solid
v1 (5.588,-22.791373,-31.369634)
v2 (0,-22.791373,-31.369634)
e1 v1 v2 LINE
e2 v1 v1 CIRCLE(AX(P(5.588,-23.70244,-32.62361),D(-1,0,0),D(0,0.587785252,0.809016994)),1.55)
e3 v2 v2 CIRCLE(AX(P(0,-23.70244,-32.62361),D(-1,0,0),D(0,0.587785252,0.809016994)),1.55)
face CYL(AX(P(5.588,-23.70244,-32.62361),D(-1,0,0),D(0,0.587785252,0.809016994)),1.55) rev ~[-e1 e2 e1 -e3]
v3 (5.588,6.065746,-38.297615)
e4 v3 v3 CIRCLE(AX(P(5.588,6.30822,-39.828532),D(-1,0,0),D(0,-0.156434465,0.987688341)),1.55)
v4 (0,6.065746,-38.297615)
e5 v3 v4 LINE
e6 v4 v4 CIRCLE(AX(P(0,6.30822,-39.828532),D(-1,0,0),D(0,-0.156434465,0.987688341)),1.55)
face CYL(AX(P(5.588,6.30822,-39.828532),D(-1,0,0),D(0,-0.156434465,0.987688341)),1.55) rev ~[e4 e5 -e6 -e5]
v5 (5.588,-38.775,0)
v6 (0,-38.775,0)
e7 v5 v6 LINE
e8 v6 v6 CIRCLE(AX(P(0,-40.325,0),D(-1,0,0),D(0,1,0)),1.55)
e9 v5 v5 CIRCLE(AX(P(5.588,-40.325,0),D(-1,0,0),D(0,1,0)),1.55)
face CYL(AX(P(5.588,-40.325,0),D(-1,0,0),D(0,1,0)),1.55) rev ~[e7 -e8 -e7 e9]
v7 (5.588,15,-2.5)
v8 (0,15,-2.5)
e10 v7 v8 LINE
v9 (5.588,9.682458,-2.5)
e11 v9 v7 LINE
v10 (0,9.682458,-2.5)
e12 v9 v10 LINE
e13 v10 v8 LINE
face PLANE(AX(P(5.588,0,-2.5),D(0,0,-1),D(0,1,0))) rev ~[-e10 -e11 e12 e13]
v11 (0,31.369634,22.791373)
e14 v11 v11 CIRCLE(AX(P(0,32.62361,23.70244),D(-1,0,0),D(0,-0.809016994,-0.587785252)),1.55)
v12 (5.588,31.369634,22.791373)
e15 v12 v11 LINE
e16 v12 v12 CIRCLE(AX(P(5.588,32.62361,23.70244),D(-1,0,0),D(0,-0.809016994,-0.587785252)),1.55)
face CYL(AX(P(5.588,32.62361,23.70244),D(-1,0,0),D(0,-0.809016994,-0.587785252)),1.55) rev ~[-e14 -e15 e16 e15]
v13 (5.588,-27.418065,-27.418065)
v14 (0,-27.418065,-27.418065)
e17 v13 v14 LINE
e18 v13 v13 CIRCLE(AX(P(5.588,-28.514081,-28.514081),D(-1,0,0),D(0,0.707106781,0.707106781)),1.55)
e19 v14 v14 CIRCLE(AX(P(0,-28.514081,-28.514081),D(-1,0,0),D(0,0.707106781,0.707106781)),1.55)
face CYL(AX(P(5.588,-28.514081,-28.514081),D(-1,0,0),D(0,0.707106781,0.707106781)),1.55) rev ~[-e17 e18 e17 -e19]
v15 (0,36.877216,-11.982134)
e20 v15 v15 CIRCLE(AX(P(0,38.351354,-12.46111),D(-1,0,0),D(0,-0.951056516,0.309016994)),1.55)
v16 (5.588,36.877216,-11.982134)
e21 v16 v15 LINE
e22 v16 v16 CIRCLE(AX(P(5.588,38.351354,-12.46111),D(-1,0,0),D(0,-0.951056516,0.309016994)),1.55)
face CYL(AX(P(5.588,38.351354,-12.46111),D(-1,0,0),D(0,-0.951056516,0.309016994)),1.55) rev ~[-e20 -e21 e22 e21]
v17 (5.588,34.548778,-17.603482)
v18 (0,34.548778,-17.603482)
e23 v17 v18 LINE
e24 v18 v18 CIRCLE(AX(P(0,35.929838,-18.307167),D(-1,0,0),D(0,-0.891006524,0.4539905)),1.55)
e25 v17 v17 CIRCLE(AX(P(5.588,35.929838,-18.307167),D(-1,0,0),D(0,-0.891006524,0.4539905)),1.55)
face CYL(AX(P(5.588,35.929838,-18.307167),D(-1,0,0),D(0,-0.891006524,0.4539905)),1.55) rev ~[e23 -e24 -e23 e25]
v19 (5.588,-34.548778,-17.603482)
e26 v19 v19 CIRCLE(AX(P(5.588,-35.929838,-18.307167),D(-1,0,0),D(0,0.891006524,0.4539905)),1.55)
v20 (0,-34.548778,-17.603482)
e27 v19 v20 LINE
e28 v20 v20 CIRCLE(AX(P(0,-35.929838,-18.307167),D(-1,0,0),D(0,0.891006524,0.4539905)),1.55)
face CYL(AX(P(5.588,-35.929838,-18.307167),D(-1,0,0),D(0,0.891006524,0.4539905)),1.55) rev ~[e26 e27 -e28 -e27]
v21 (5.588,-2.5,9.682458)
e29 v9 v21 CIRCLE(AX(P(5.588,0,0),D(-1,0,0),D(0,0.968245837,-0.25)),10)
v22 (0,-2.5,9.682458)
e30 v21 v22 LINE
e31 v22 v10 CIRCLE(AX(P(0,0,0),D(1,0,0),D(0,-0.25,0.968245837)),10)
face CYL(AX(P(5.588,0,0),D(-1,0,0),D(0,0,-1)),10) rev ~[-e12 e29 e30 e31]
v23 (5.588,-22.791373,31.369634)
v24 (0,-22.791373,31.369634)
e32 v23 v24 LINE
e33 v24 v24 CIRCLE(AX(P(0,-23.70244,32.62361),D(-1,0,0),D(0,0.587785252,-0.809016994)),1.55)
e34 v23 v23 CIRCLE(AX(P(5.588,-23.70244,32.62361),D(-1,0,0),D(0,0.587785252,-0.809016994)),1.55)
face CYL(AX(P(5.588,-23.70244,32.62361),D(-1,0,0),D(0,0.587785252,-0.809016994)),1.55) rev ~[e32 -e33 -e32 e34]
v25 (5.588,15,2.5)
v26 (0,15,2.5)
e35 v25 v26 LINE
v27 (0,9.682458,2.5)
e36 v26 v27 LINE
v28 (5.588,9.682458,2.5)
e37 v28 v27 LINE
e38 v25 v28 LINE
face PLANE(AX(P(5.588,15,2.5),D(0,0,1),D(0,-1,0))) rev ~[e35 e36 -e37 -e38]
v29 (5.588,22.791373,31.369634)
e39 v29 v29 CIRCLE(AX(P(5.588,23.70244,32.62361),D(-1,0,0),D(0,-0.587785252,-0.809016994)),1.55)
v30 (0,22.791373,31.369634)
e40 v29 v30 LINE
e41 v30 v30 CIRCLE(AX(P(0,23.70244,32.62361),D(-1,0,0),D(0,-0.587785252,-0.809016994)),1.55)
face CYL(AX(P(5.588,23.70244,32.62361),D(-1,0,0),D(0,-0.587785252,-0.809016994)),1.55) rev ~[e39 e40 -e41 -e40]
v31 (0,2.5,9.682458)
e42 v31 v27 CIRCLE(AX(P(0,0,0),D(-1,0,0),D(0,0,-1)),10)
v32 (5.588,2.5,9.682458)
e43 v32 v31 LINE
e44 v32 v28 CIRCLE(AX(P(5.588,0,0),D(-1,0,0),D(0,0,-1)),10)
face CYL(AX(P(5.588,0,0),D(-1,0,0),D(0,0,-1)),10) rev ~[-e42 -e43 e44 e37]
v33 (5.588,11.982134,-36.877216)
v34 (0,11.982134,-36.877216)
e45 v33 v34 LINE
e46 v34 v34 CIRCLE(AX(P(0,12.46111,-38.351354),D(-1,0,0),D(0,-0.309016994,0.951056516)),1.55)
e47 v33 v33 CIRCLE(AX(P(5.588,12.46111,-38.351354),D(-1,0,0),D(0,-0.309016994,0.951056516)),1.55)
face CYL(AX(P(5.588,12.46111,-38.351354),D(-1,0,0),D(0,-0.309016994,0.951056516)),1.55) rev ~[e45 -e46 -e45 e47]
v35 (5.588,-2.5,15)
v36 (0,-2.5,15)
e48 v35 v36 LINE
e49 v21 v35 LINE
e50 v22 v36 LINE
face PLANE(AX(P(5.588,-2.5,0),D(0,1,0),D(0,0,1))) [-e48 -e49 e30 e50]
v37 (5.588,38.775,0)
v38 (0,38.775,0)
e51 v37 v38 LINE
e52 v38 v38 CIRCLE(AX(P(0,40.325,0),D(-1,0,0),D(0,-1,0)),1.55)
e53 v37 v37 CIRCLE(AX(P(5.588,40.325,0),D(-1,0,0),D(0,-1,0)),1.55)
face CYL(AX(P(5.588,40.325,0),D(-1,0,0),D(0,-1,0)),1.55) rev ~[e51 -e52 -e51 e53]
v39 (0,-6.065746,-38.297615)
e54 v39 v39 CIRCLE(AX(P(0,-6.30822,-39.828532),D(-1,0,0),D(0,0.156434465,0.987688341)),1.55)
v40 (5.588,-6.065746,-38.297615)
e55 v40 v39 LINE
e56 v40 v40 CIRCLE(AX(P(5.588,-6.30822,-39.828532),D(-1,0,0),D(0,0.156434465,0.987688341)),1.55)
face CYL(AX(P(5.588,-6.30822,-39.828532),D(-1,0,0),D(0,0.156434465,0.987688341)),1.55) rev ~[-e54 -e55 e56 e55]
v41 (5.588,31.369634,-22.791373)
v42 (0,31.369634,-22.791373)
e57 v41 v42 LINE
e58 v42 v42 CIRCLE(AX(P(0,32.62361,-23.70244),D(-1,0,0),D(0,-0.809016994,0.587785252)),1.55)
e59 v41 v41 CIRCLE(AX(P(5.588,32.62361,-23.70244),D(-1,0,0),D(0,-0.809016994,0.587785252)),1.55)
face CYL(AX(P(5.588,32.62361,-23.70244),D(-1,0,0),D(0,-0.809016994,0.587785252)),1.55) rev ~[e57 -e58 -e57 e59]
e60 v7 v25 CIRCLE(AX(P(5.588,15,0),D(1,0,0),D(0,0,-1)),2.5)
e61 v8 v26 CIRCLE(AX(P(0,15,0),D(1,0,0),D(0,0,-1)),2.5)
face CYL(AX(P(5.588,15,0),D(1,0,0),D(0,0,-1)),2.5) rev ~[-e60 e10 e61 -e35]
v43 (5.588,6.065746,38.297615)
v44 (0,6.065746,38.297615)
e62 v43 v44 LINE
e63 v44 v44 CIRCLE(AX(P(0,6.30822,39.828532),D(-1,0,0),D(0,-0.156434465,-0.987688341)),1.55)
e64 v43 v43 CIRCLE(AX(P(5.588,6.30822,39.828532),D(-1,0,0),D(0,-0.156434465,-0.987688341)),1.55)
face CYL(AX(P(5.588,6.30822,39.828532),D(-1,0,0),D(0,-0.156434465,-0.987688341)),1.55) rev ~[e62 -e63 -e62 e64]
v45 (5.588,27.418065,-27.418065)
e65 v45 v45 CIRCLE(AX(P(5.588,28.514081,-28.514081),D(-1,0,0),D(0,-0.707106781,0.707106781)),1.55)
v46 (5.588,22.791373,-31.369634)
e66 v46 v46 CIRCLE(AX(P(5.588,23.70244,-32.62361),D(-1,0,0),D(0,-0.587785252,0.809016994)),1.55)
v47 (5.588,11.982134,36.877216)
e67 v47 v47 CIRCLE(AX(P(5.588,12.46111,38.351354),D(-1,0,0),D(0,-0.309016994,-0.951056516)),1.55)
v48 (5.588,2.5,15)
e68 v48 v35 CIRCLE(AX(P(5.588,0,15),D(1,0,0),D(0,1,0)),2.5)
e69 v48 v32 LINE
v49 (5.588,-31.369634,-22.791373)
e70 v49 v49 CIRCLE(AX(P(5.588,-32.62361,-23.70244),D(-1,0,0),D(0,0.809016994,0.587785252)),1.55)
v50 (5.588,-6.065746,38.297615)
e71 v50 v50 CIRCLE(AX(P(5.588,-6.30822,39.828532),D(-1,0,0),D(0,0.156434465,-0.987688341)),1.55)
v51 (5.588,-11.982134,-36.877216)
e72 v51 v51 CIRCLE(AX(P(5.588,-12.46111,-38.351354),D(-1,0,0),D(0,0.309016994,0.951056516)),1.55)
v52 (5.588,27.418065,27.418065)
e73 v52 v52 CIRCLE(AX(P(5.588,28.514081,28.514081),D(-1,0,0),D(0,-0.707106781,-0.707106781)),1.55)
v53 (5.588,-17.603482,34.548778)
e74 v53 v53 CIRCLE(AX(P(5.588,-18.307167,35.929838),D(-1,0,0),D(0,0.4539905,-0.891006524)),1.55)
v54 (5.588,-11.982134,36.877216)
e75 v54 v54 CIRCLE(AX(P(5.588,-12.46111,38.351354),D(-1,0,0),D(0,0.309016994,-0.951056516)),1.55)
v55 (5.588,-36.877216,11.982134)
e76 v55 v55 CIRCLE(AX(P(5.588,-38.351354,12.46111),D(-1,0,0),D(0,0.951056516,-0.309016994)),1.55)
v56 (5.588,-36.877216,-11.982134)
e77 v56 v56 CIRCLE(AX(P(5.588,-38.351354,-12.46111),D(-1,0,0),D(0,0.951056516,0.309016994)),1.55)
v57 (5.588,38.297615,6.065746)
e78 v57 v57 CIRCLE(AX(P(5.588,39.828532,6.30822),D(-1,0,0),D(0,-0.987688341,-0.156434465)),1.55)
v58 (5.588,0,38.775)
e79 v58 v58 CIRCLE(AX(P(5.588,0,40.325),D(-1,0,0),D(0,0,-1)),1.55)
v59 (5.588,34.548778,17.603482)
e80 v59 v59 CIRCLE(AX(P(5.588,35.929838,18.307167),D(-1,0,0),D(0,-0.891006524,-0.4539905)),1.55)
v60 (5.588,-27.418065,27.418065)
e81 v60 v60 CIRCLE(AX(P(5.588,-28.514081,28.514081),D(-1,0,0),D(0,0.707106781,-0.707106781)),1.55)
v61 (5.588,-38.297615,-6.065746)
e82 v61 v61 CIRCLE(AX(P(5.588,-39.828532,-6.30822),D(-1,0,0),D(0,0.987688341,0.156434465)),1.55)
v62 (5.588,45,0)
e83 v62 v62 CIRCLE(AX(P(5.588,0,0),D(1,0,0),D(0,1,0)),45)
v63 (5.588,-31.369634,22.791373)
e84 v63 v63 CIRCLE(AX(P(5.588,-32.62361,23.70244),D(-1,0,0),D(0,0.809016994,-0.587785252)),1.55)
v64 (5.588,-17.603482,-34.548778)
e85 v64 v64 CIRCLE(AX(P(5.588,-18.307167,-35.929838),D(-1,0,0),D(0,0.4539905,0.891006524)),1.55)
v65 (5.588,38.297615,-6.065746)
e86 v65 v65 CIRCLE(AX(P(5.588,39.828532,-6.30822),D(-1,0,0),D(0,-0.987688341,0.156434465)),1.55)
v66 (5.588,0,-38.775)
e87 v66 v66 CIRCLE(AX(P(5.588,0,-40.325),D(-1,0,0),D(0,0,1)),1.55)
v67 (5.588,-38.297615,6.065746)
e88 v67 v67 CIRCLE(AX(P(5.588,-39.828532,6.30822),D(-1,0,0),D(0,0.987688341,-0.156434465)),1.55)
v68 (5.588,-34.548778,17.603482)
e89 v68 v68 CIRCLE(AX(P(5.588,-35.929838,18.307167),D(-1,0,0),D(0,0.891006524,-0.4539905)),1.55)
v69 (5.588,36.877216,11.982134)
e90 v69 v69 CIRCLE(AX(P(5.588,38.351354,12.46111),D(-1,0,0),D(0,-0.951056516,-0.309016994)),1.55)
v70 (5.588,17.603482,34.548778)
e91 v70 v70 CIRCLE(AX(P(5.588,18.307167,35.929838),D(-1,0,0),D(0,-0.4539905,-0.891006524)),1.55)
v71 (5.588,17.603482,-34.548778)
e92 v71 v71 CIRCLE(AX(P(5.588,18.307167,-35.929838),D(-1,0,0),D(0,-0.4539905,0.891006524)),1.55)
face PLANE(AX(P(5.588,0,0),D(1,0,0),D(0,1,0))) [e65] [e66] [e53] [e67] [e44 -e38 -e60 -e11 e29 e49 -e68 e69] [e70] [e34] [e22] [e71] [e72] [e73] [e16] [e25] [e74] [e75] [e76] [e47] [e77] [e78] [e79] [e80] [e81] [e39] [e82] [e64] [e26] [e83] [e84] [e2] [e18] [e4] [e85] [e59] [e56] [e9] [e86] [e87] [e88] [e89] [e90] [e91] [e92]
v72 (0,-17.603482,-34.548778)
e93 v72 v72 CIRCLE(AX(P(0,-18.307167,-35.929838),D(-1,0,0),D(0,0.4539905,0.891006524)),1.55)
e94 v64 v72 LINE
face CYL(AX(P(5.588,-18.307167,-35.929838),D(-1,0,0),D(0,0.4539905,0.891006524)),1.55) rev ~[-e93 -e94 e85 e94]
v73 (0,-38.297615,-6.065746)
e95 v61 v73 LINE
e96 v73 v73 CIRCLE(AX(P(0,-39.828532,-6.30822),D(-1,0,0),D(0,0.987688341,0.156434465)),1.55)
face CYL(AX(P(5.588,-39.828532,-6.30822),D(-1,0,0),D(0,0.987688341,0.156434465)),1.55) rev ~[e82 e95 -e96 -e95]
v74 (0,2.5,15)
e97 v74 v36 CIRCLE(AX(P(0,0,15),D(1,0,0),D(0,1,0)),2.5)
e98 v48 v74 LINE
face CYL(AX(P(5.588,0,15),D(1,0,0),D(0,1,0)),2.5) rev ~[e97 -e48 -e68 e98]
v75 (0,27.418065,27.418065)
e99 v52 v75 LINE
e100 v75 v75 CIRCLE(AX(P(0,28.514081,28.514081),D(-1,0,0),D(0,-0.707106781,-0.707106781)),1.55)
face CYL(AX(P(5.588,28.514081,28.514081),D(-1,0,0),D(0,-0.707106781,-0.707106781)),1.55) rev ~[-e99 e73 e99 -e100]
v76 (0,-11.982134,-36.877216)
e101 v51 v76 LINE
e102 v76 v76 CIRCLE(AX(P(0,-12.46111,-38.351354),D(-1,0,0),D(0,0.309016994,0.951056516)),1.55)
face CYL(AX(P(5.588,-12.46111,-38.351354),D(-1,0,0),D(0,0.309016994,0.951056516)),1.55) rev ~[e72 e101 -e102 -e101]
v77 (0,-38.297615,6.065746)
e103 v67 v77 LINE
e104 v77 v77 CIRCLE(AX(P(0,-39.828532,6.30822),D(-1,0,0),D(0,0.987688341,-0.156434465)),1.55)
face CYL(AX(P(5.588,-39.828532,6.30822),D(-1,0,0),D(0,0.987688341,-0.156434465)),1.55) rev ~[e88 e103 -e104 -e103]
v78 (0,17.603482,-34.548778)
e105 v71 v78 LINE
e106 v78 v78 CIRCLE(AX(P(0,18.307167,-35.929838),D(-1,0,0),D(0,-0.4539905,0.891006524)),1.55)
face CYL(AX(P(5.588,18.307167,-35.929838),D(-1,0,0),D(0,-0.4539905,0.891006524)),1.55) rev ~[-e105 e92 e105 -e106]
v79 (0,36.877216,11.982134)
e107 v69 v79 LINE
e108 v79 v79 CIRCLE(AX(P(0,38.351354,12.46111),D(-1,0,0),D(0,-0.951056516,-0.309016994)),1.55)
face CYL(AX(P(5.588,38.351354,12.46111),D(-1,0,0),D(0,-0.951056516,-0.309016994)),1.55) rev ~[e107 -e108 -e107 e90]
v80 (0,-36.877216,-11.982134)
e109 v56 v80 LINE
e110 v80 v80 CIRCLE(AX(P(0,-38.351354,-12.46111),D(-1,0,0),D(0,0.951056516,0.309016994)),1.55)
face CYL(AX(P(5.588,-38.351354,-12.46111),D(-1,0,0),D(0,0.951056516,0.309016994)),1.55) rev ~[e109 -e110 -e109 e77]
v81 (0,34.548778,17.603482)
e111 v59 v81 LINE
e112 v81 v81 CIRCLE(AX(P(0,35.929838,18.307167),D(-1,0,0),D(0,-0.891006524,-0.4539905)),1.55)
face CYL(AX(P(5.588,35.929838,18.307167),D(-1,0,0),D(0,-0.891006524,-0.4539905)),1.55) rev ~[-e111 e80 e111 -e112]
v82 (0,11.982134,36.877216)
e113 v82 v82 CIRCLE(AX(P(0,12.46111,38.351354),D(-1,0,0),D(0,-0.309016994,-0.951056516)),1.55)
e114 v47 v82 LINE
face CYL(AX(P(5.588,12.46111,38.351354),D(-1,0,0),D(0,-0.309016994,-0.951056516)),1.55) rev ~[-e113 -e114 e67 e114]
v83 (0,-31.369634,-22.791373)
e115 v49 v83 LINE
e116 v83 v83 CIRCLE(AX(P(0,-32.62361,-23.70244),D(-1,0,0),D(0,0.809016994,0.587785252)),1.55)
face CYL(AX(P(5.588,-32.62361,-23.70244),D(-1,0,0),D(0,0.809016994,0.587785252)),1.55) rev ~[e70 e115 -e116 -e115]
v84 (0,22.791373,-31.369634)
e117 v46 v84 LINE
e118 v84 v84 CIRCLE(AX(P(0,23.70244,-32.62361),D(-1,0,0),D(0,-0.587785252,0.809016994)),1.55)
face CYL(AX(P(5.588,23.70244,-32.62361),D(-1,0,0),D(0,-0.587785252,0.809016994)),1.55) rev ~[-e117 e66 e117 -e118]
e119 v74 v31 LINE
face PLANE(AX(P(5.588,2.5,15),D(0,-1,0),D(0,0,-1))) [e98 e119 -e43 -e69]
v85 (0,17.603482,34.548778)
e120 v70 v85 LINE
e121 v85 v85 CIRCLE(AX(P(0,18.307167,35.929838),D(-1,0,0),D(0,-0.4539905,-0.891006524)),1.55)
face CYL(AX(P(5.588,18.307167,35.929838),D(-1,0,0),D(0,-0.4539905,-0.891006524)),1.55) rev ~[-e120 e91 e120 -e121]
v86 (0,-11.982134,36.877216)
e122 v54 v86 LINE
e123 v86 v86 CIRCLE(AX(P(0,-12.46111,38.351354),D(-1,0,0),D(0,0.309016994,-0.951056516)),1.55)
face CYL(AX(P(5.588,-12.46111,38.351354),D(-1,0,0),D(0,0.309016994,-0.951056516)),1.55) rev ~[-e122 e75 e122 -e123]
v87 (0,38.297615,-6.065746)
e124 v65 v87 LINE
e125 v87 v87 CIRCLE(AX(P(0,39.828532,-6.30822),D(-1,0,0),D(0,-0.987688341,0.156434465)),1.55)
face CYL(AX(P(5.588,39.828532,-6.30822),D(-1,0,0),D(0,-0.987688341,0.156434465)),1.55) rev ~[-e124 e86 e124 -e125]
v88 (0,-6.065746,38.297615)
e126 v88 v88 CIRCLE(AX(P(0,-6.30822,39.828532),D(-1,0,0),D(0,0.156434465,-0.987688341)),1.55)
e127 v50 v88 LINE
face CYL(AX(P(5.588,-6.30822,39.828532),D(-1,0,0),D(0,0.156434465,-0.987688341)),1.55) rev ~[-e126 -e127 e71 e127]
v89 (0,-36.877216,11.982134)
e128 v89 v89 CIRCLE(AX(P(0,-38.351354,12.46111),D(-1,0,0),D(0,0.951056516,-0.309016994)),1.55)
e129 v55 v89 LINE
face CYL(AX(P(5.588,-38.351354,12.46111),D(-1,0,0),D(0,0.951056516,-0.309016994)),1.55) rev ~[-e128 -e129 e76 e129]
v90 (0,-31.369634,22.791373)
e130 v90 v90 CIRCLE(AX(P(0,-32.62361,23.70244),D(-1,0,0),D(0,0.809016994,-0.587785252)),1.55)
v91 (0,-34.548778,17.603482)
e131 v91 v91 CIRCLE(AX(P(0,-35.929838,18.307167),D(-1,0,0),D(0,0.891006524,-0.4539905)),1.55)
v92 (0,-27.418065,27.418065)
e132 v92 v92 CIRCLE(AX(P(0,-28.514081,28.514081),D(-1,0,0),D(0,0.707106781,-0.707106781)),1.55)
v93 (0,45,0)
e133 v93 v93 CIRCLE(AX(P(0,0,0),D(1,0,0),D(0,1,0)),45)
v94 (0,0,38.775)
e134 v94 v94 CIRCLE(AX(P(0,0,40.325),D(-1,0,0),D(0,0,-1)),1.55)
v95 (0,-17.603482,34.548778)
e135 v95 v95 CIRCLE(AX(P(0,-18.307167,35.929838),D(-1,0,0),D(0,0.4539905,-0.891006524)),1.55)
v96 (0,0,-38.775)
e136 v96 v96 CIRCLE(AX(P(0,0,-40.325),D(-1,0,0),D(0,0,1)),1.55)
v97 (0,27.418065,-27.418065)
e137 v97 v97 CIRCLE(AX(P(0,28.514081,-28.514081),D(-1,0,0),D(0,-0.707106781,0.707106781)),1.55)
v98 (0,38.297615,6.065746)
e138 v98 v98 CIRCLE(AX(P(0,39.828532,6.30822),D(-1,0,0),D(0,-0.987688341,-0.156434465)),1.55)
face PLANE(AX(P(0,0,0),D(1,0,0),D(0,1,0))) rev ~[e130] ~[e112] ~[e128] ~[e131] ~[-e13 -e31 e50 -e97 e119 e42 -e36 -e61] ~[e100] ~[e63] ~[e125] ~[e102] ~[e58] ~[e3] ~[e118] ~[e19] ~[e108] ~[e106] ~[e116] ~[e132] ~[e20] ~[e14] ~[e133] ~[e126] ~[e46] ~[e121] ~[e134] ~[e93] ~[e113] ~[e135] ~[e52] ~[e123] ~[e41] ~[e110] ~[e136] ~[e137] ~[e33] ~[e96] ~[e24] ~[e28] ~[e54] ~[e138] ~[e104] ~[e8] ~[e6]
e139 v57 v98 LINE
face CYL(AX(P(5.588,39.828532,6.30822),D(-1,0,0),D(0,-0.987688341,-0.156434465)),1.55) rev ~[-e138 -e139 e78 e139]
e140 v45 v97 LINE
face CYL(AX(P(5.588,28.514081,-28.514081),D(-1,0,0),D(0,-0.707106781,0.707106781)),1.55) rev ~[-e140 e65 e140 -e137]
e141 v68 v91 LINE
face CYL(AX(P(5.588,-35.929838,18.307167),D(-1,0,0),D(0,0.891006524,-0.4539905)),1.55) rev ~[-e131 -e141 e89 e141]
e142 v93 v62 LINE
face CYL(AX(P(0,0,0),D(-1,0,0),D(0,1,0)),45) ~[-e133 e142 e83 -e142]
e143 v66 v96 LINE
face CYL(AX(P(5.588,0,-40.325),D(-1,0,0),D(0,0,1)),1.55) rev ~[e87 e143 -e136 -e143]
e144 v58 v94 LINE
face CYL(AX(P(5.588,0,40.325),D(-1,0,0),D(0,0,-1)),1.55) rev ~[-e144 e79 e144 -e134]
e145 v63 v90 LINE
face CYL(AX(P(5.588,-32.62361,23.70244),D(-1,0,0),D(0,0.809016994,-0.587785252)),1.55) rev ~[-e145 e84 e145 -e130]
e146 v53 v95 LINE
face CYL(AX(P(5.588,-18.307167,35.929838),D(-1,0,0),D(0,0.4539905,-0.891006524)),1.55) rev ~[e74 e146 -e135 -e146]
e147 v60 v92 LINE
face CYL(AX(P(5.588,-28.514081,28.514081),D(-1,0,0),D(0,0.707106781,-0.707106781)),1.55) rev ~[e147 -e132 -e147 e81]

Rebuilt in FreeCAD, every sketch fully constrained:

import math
import FreeCAD as App
import Part
import Sketcher

V = App.Vector
Q = App.Units.Quantity

doc = App.newDocument("Part")
body = doc.addObject("PartDesign::Body", "Body")

sketch1 = body.newObject("Sketcher::SketchObject", "Sketch")
sketch1.AttachmentSupport = (doc.getObject("YZ_Plane"), [""])
sketch1.MapMode = "FlatFace"
sketch1.addGeometry(Part.Circle(V(0, 0, 0), V(0, 0, 1), 45), False)
sketch1.addConstraint([
    Sketcher.Constraint("Coincident", 0, 3, -1, 1),
    Sketcher.Constraint("Diameter", 0, Q("90 mm")),
])
pad1 = body.newObject("PartDesign::Pad", "Pad")
pad1.Profile = sketch1
pad1.Length = 5.588

sketch2 = body.newObject("Sketcher::SketchObject", "Sketch001")
sketch2.AttachmentSupport = (doc.getObject("YZ_Plane"), [""])
sketch2.MapMode = "FlatFace"
sketch2.AttachmentOffset = App.Placement(V(0, 0, 5.588), App.Rotation())
sketch2.addGeometry(Part.Circle(V(0, 40.325, 0), V(0, 0, 1), 1.55), False)
sketch2.addConstraint([
    Sketcher.Constraint("PointOnObject", 0, 3, -2),
    Sketcher.Constraint("Diameter", 0, Q("3.1 mm")),
    Sketcher.Constraint("DistanceY", -1, 1, 0, 3, Q("40.325 mm")),
])
doc.recompute()
hole = body.newObject("PartDesign::Hole", "Hole")
hole.Profile = sketch2
hole.ThreadType = "None"
hole.Diameter = 3.1
hole.DepthType = "ThroughAll"
doc.recompute()

polarpattern = body.newObject("PartDesign::PolarPattern", "PolarPattern")
polarpattern.Originals = [hole]
polarpattern.Axis = (doc.getObject("X_Axis"), [""])
polarpattern.Angle = 360
polarpattern.Occurrences = 40
body.Tip = polarpattern

sketch3 = body.newObject("Sketcher::SketchObject", "Sketch002")
sketch3.AttachmentSupport = (doc.getObject("YZ_Plane"), [""])
sketch3.MapMode = "FlatFace"
sketch3.AttachmentOffset = App.Placement(V(0, 0, 5.588), App.Rotation())
sketch3.addGeometry(Part.Circle(V(0, 0, 0), V(0, 0, 1), 10), False)
sketch3.addConstraint([
    Sketcher.Constraint("Coincident", 0, 3, -1, 1),
    Sketcher.Constraint("Diameter", 0, Q("20 mm")),
])
doc.recompute()
hole2 = body.newObject("PartDesign::Hole", "Hole001")
hole2.Profile = sketch3
hole2.ThreadType = "None"
hole2.Diameter = 20
hole2.DepthType = "ThroughAll"

sketch4 = body.newObject("Sketcher::SketchObject", "Sketch003")
sketch4.AttachmentSupport = (doc.getObject("YZ_Plane"), [""])
sketch4.MapMode = "FlatFace"
sketch4.AttachmentOffset = App.Placement(V(0, 0, 5.588), App.Rotation())
sketch4.addGeometry([
    Part.LineSegment(V(-2.5, 15, 0), V(-2.5, 0, 0)),
    Part.LineSegment(V(-2.5, 0, 0), V(0, 0, 0)),
    Part.LineSegment(V(0, 0, 0), V(0, -2.5, 0)),
    Part.LineSegment(V(0, -2.5, 0), V(15, -2.5, 0)),
    Part.ArcOfCircle(Part.Circle(V(15, 0, 0), V(0, 0, 1), 2.5), math.radians(-90), math.radians(90)),
    Part.LineSegment(V(15, 2.5, 0), V(2.5, 2.5, 0)),
    Part.LineSegment(V(2.5, 2.5, 0), V(2.5, 15, 0)),
    Part.ArcOfCircle(Part.Circle(V(0, 15, 0), V(0, 0, 1), 2.5), math.radians(0), math.radians(180)),
], False)
sketch4.addConstraint([
    Sketcher.Constraint("Coincident", 0, 2, 1, 1),
    Sketcher.Constraint("Coincident", 1, 2, 2, 1),
    Sketcher.Constraint("Coincident", 2, 2, 3, 1),
    Sketcher.Constraint("Tangent", 3, 2, 4, 1),
    Sketcher.Constraint("Tangent", 4, 2, 5, 1),
    Sketcher.Constraint("Coincident", 5, 2, 6, 1),
    Sketcher.Constraint("Tangent", 6, 2, 7, 1),
    Sketcher.Constraint("Tangent", 7, 2, 0, 1),
    Sketcher.Constraint("Vertical", 0),
    Sketcher.Constraint("Horizontal", 1),
    Sketcher.Constraint("Vertical", 2),
    Sketcher.Constraint("Horizontal", 3),
    Sketcher.Constraint("Horizontal", 5),
    Sketcher.Constraint("Vertical", 6),
    Sketcher.Constraint("Coincident", 1, 2, -1, 1),
    Sketcher.Constraint("Equal", 4, 7),
    Sketcher.Constraint("PointOnObject", 4, 3, -1),
    Sketcher.Constraint("PointOnObject", 7, 3, -2),
    Sketcher.Constraint("Equal", 3, 0),
    Sketcher.Constraint("Radius", 4, Q("2.5 mm")),
    Sketcher.Constraint("DistanceX", 3, 1, 3, 2, Q("15 mm")),
])
pocket1 = body.newObject("PartDesign::Pocket", "Pocket")
pocket1.Profile = sketch4
pocket1.Type = "ThroughAll"

doc.recompute()
